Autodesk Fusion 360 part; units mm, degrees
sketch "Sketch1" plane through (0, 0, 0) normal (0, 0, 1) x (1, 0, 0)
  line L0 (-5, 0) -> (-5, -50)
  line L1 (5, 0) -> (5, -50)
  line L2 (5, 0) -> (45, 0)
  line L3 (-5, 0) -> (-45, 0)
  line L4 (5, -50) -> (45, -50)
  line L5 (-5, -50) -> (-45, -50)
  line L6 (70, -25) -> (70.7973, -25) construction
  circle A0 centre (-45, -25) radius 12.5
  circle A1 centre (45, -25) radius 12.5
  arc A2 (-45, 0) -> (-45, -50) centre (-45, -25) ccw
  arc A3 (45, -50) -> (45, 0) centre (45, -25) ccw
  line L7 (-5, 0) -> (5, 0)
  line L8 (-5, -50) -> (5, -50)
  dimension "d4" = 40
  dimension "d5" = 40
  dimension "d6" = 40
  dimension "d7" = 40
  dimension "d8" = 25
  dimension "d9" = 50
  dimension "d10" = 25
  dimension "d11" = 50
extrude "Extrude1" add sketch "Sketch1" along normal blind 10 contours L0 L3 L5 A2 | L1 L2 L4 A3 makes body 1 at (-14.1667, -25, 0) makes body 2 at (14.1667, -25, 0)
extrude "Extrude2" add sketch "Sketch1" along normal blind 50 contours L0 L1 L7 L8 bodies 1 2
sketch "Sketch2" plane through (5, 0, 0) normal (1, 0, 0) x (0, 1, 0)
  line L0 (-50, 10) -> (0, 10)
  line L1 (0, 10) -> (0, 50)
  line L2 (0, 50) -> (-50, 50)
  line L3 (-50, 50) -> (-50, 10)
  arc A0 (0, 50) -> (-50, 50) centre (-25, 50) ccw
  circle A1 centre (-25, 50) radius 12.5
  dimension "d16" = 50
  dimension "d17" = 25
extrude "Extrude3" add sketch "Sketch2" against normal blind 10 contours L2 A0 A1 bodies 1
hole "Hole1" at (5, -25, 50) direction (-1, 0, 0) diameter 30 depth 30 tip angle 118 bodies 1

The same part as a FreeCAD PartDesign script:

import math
import FreeCAD as App
import Part
import Sketcher
Q = App.Units.Quantity

doc = App.newDocument("Part")
body = doc.addObject("PartDesign::Body", "Body")
body.AllowCompound = True

sketch1 = body.newObject("Sketcher::SketchObject", "Sketch")
sketch1.AttachmentSupport = (doc.getObject("XY_Plane"), [""])
sketch1.MapMode = "FlatFace"
sketch1.addGeometry(Part.LineSegment(App.Vector(-5, -50, 0), App.Vector(-5, 0, 0)), False)
sketch1.addGeometry(Part.LineSegment(App.Vector(-5, 0, 0), App.Vector(-45, 0, 0)), False)
sketch1.addGeometry(Part.ArcOfCircle(Part.Circle(App.Vector(-45, -25, 0), App.Vector(0, 0, 1), 25), math.radians(90), math.radians(270)), False)
sketch1.addGeometry(Part.LineSegment(App.Vector(-45, -50, 0), App.Vector(-5, -50, 0)), False)
sketch1.addGeometry(Part.Circle(App.Vector(-45, -25, 0), App.Vector(0, 0, 1), 12.5), False)
sketch1.addGeometry(Part.LineSegment(App.Vector(45, 0, 0), App.Vector(5, 0, 0)), False)
sketch1.addGeometry(Part.LineSegment(App.Vector(5, 0, 0), App.Vector(5, -50, 0)), False)
sketch1.addGeometry(Part.LineSegment(App.Vector(5, -50, 0), App.Vector(45, -50, 0)), False)
sketch1.addGeometry(Part.ArcOfCircle(Part.Circle(App.Vector(45, -25, 0), App.Vector(0, 0, 1), 25), math.radians(-90), math.radians(90)), False)
sketch1.addGeometry(Part.Circle(App.Vector(45, -25, 0), App.Vector(0, 0, 1), 12.5), False)
sketch1.addConstraint(Sketcher.Constraint("Coincident", 0, 2, 1, 1))
sketch1.addConstraint(Sketcher.Constraint("Tangent", 1, 2, 2, 1))
sketch1.addConstraint(Sketcher.Constraint("Tangent", 2, 2, 3, 1))
sketch1.addConstraint(Sketcher.Constraint("Coincident", 3, 2, 0, 1))
sketch1.addConstraint(Sketcher.Constraint("Coincident", 5, 2, 6, 1))
sketch1.addConstraint(Sketcher.Constraint("Coincident", 6, 2, 7, 1))
sketch1.addConstraint(Sketcher.Constraint("Tangent", 7, 2, 8, 1))
sketch1.addConstraint(Sketcher.Constraint("Tangent", 8, 2, 5, 1))
sketch1.addConstraint(Sketcher.Constraint("Vertical", 0))
sketch1.addConstraint(Sketcher.Constraint("Horizontal", 1))
sketch1.addConstraint(Sketcher.Constraint("Horizontal", 3))
sketch1.addConstraint(Sketcher.Constraint("Horizontal", 5))
sketch1.addConstraint(Sketcher.Constraint("Vertical", 6))
sketch1.addConstraint(Sketcher.Constraint("Horizontal", 7))
sketch1.addConstraint(Sketcher.Constraint("Coincident", 4, 3, 2, 3))
sketch1.addConstraint(Sketcher.Constraint("Coincident", 9, 3, 8, 3))
sketch1.addConstraint(Sketcher.Constraint("Equal", 2, 8))
sketch1.addConstraint(Sketcher.Constraint("Equal", 4, 9))
sketch1.addConstraint(Sketcher.Constraint("Symmetric", 0, 2, 5, 2, -1, 1))
sketch1.addConstraint(Sketcher.Constraint("Symmetric", 2, 3, 8, 3, -2))
sketch1.addConstraint(Sketcher.Constraint("Diameter", 4, Q("25 mm")))
sketch1.addConstraint(Sketcher.Constraint("Radius", 2, Q("25 mm")))
sketch1.addConstraint(Sketcher.Constraint("DistanceX", 1, 2, 1, 1, Q("40 mm")))
sketch1.addConstraint(Sketcher.Constraint("DistanceX", 0, 2, 8, 3, Q("50 mm")))
pad1 = body.newObject("PartDesign::Pad", "Pad")
pad1.Profile = sketch1
pad1.Length = 10

sketch2 = body.newObject("Sketcher::SketchObject", "Sketch001")
sketch2.AttachmentSupport = (doc.getObject("XY_Plane"), [""])
sketch2.MapMode = "FlatFace"
sketch2.addGeometry(Part.LineSegment(App.Vector(5, 0, 0), App.Vector(-5, 0, 0)), False)
sketch2.addGeometry(Part.LineSegment(App.Vector(-5, 0, 0), App.Vector(-5, -50, 0)), False)
sketch2.addGeometry(Part.LineSegment(App.Vector(-5, -50, 0), App.Vector(5, -50, 0)), False)
sketch2.addGeometry(Part.LineSegment(App.Vector(5, -50, 0), App.Vector(5, 0, 0)), False)
sketch2.addConstraint(Sketcher.Constraint("Coincident", 0, 2, 1, 1))
sketch2.addConstraint(Sketcher.Constraint("Coincident", 1, 2, 2, 1))
sketch2.addConstraint(Sketcher.Constraint("Coincident", 2, 2, 3, 1))
sketch2.addConstraint(Sketcher.Constraint("Coincident", 3, 2, 0, 1))
sketch2.addConstraint(Sketcher.Constraint("Horizontal", 0))
sketch2.addConstraint(Sketcher.Constraint("Vertical", 1))
sketch2.addConstraint(Sketcher.Constraint("Horizontal", 2))
sketch2.addConstraint(Sketcher.Constraint("Vertical", 3))
sketch2.addConstraint(Sketcher.Constraint("Symmetric", 0, 2, 3, 2, -1, 1))
sketch2.addConstraint(Sketcher.Constraint("DistanceY", 1, 2, 1, 1, Q("50 mm")))
sketch2.addConstraint(Sketcher.Constraint("DistanceX", 0, 2, 0, 1, Q("10 mm")))
pad2 = body.newObject("PartDesign::Pad", "Pad001")
pad2.Profile = sketch2
pad2.Length = 50

sketch3 = body.newObject("Sketcher::SketchObject", "Sketch002")
sketch3.AttachmentSupport = (doc.getObject("YZ_Plane"), [""])
sketch3.MapMode = "FlatFace"
sketch3.AttachmentOffset = App.Placement(App.Vector(0, 0, 5), App.Rotation())
sketch3.addGeometry(Part.ArcOfCircle(Part.Circle(App.Vector(-25, 50, 0), App.Vector(0, 0, 1), 25), math.radians(0), math.radians(180)), False)
sketch3.addGeometry(Part.LineSegment(App.Vector(-50, 50, 0), App.Vector(-37.5, 50, 0)), False)
sketch3.addGeometry(Part.ArcOfCircle(Part.Circle(App.Vector(-25, 50, 0), App.Vector(0, 0, 1), 12.5), math.radians(0), math.radians(180)), False)
sketch3.addGeometry(Part.LineSegment(App.Vector(-12.5, 50, 0), App.Vector(0, 50, 0)), False)
sketch3.addConstraint(Sketcher.Constraint("Coincident", 0, 2, 1, 1))
sketch3.addConstraint(Sketcher.Constraint("Coincident", 1, 2, 2, 2))
sketch3.addConstraint(Sketcher.Constraint("Coincident", 2, 1, 3, 1))
sketch3.addConstraint(Sketcher.Constraint("Coincident", 3, 2, 0, 1))
sketch3.addConstraint(Sketcher.Constraint("Horizontal", 1))
sketch3.addConstraint(Sketcher.Constraint("Horizontal", 3))
sketch3.addConstraint(Sketcher.Constraint("Coincident", 2, 3, 0, 3))
sketch3.addConstraint(Sketcher.Constraint("PointOnObject", 3, 2, -2))
sketch3.addConstraint(Sketcher.Constraint("Horizontal", 2, 3, 0, 2))
sketch3.addConstraint(Sketcher.Constraint("Horizontal", 1, 2, 2, 1))
sketch3.addConstraint(Sketcher.Constraint("Radius", 0, Q("25 mm")))
sketch3.addConstraint(Sketcher.Constraint("Radius", 2, Q("12.5 mm")))
sketch3.addConstraint(Sketcher.Constraint("DistanceY", -1, 1, 0, 3, Q("50 mm")))
pad3 = body.newObject("PartDesign::Pad", "Pad002")
pad3.Profile = sketch3
pad3.Length = 10
pad3.Reversed = True

sketch4 = body.newObject("Sketcher::SketchObject", "Sketch003")
sketch4.AttachmentSupport = (doc.getObject("YZ_Plane"), [""])
sketch4.MapMode = "FlatFace"
sketch4.AttachmentOffset = App.Placement(App.Vector(0, 0, 5), App.Rotation())
sketch4.addGeometry(Part.Circle(App.Vector(-25, 50, 0), App.Vector(0, 0, 1), 15), False)
sketch4.addConstraint(Sketcher.Constraint("Diameter", 0, Q("30 mm")))
sketch4.addConstraint(Sketcher.Constraint("DistanceX", 0, 3, -1, 1, Q("25 mm")))
sketch4.addConstraint(Sketcher.Constraint("DistanceY", -1, 1, 0, 3, Q("50 mm")))
doc.recompute()
hole = body.newObject("PartDesign::Hole", "Hole")
hole.Profile = sketch4
hole.ThreadType = "None"
hole.Diameter = 30
hole.DepthType = "Dimension"
hole.Depth = 30
hole.DrillPoint = "Angled"
hole.DrillPointAngle = 118

doc.recompute()
